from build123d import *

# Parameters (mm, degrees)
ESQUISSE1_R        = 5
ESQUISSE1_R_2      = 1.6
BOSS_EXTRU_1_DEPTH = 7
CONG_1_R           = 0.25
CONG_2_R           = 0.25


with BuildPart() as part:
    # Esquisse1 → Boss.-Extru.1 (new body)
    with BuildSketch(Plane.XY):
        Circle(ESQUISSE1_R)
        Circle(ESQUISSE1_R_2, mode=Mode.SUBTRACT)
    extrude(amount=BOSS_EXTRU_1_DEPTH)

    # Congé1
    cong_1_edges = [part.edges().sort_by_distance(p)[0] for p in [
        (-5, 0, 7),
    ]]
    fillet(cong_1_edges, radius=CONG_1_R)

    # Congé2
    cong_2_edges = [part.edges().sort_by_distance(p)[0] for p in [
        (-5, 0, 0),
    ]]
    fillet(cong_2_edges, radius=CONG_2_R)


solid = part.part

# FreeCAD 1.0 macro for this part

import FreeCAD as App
import Part
import Sketcher

V = App.Vector


def edges_at(feature, points):
    """Names of the edges that pass closest to the given points."""
    edges = feature.Shape.Edges
    near = lambda p: min(range(len(edges)), key=lambda i: edges[i].distToShape(Part.Vertex(*p))[0])
    return sorted({f"Edge{near(p) + 1}" for p in points})

doc = App.newDocument("Part")
body = doc.addObject("PartDesign::Body", "Body")

sketch1 = doc.addObject("Sketcher::SketchObject", "Sketch")
body.addObject(sketch1)
sketch1.AttachmentSupport = (doc.XY_Plane, [""])
sketch1.MapMode = "FlatFace"
sketch1.addGeometry([
    Part.Circle(V(0, 0, 0), V(0, 0, 1), 5),
    Part.Circle(V(0, 0, 0), V(0, 0, 1), 1.6),
], False)
sketch1.addConstraint([
    Sketcher.Constraint("Coincident", 0, 3, -1, 1),
    Sketcher.Constraint("Coincident", 1, 3, -1, 1),
    Sketcher.Constraint("Diameter", 0, 10.0),
    Sketcher.Constraint("Diameter", 1, 3.2),
])
pad1 = doc.addObject("PartDesign::Pad", "Pad")
body.addObject(pad1)
pad1.Profile = sketch1
pad1.Length = 7
doc.recompute()

fillet = doc.addObject("PartDesign::Fillet", "Fillet")
body.addObject(fillet)
fillet.Base = (pad1, edges_at(pad1, [(-5, 0, 7)]))
fillet.Radius = 0.25
doc.recompute()

fillet2 = doc.addObject("PartDesign::Fillet", "Fillet001")
body.addObject(fillet2)
fillet2.Base = (fillet, edges_at(fillet, [(-5, 0, 0)]))
fillet2.Radius = 0.25

doc.recompute()
